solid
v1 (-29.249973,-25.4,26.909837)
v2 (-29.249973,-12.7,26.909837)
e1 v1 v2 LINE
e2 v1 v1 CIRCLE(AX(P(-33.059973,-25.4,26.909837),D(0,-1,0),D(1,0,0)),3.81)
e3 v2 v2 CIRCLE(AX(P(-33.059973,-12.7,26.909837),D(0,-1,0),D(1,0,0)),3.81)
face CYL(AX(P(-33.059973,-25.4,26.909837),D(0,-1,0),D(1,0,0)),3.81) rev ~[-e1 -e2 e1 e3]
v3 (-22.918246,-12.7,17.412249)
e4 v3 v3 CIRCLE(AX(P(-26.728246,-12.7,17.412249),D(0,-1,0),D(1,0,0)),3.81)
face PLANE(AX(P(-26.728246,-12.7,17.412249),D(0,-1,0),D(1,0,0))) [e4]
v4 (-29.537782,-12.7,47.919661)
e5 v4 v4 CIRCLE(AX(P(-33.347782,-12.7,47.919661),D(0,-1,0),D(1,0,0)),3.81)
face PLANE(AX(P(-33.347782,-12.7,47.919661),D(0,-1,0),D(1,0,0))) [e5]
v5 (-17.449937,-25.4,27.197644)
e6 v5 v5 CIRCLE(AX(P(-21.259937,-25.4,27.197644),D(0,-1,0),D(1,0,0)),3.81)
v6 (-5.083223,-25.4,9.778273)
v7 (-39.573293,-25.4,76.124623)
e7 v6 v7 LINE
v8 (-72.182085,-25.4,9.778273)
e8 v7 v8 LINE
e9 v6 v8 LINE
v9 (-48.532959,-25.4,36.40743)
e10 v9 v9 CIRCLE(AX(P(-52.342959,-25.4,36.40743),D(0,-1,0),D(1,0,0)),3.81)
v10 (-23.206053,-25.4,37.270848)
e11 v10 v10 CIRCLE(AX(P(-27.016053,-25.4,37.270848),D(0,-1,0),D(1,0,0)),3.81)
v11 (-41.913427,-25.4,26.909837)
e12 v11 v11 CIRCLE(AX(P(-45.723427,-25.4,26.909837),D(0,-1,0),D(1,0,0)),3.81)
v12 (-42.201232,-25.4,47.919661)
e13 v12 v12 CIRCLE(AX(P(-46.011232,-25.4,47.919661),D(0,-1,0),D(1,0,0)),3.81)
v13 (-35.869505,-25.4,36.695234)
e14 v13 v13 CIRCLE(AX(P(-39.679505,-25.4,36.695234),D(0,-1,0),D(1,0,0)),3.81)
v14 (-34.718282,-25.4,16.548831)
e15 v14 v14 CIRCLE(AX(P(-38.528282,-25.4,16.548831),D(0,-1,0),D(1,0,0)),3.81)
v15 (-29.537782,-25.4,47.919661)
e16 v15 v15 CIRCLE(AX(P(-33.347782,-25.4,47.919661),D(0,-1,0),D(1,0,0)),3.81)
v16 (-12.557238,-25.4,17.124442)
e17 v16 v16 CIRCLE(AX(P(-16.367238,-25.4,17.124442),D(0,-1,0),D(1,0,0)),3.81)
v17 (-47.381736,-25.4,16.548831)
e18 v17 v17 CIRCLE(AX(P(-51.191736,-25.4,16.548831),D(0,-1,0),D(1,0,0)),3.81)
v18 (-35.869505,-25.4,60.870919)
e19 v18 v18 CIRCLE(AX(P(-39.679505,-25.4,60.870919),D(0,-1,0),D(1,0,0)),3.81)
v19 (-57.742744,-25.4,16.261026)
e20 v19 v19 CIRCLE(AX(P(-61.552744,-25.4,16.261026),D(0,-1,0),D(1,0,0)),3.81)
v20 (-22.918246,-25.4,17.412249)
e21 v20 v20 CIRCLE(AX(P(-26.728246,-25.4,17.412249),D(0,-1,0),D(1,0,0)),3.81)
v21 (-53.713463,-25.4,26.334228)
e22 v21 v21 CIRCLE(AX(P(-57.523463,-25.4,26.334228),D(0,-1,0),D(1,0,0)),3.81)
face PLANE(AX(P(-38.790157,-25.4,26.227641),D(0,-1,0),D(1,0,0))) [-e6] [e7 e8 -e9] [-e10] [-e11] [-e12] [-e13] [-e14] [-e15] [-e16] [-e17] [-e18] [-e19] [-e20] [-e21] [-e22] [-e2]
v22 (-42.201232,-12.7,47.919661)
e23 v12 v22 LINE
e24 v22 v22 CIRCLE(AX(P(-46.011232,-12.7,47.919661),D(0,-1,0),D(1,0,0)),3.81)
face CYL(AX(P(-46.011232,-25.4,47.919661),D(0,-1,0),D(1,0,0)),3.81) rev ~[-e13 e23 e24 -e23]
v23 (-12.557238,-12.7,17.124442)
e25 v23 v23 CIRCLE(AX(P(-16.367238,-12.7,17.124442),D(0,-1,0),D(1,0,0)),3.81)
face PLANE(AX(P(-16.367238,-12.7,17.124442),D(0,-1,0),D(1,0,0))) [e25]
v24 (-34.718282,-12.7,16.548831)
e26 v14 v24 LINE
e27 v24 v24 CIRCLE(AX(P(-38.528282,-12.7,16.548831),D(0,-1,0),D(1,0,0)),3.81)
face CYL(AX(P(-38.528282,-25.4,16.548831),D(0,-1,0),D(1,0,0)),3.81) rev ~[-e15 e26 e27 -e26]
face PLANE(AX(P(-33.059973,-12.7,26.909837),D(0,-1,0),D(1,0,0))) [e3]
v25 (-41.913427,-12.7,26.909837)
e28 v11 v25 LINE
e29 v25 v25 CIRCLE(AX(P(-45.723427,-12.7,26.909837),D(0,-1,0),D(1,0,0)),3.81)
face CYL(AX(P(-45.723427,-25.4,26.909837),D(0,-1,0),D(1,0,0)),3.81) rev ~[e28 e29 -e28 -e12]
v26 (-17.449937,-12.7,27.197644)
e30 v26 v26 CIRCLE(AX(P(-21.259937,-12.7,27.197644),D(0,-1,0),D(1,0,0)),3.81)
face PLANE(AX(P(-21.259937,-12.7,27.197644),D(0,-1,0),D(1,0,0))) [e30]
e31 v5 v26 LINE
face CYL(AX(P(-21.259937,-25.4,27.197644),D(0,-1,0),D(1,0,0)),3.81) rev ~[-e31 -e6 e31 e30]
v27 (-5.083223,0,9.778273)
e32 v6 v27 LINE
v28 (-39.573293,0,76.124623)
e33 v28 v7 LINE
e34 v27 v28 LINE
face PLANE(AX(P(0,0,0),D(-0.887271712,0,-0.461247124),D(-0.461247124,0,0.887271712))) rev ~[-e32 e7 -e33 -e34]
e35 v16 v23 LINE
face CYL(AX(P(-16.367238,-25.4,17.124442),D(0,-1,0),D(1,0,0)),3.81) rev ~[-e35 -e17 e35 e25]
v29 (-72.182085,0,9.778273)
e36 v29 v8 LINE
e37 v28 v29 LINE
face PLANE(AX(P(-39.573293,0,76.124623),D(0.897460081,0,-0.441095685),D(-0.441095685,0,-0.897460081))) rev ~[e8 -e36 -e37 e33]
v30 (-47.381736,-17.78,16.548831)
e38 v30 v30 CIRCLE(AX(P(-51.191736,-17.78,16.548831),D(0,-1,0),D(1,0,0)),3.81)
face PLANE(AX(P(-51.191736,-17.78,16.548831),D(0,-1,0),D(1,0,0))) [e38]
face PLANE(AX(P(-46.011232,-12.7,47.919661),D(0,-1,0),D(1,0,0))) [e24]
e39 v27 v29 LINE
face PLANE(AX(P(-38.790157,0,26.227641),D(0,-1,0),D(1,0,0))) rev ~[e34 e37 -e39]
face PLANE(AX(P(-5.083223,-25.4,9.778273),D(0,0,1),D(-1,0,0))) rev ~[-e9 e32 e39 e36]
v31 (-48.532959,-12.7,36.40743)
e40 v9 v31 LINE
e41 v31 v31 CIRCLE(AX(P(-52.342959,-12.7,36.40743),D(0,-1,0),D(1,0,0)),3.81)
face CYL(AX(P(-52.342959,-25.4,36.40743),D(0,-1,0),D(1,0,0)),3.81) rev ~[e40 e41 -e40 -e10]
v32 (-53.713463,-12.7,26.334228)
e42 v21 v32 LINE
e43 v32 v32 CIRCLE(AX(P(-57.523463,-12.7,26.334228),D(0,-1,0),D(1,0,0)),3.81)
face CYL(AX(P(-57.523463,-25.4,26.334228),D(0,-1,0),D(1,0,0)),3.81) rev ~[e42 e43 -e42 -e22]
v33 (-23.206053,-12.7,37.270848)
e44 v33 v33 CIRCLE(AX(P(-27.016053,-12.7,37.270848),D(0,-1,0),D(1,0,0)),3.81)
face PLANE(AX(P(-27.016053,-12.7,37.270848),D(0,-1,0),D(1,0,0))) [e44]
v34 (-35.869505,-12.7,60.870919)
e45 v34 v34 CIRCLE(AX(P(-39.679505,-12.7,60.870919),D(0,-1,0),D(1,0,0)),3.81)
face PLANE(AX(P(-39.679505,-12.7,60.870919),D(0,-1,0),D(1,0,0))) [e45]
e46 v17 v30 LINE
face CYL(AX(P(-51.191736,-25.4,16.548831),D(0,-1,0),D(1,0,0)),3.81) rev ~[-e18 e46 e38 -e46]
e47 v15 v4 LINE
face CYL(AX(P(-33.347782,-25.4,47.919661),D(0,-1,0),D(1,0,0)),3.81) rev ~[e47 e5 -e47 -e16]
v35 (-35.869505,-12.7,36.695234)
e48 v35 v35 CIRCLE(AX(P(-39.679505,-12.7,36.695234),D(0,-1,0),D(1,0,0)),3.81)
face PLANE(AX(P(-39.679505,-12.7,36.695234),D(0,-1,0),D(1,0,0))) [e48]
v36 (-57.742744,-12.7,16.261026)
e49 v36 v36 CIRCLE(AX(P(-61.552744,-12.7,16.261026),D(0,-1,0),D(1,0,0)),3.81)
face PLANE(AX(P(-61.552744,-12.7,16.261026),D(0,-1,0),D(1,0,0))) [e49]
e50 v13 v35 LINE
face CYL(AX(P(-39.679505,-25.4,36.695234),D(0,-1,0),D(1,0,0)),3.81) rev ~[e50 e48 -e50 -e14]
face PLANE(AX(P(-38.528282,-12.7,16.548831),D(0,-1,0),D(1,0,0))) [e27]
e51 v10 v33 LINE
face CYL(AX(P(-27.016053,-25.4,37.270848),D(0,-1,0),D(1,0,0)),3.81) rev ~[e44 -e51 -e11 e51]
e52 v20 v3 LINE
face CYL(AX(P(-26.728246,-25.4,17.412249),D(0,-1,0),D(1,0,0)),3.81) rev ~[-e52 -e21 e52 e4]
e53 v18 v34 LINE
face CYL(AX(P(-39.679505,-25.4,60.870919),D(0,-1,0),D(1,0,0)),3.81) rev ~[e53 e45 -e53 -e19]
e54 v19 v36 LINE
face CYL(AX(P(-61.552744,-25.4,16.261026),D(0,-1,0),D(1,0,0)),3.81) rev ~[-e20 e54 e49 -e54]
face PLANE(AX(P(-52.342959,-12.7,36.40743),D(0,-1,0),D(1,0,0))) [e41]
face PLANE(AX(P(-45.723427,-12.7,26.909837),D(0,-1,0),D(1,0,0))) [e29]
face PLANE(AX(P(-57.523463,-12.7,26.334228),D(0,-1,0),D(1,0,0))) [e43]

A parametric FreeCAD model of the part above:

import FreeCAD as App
import Part
import Sketcher
from FreeCAD import Vector
Q = App.Units.Quantity


def add_polygon(sketch, points):
    """Adds a closed chain of lines whose ends are joined by coincident constraints."""
    first, n = sketch.GeometryCount, len(points)
    for a, b in zip(points, points[1:] + points[:1]):
        sketch.addGeometry(Part.LineSegment(App.Vector(*a, 0), App.Vector(*b, 0)), False)
    for i in range(n):
        sketch.addConstraint(Sketcher.Constraint("Coincident", first + i, 2, first + (i + 1) % n, 1))

doc = App.newDocument("Part")
body = doc.addObject("PartDesign::Body", "Body")

# Sketch on XZ plane
sketch1 = body.newObject("Sketcher::SketchObject", "Sketch")
sketch1.AttachmentSupport = (doc.getObject("XZ_Plane"), [""])
sketch1.MapMode = "FlatFace"
add_polygon(sketch1, [(-77, 0), (0, 0), (-40, 76)])  # lines 0-2
sketch1.addConstraint(Sketcher.Constraint("Horizontal", 0))
sketch1.addConstraint(Sketcher.Constraint("Coincident", 0, 2, -1, 1))
sketch1.addConstraint(Sketcher.Constraint("DistanceX", 0, 1, 0, 2, 76.988041))
sketch1.addConstraint(Sketcher.Constraint("Distance", 1, 85.796292))
sketch1.addConstraint(Sketcher.Constraint("Distance", 2, 84.822294))
pad1 = body.newObject("PartDesign::Pad", "Pad")
pad1.Profile = sketch1
pad1.Length = Q("1 in")

# Sketch on XZ plane
sketch2 = body.newObject("Sketcher::SketchObject", "Sketch001")
sketch2.AttachmentSupport = (doc.getObject("XZ_Plane"), [""])
sketch2.MapMode = "FlatFace"
sketch2.AttachmentOffset = App.Placement(Vector(0, 0, 1 * 25.4), App.Rotation())
sketch2.addGeometry(Part.Circle(Vector(-39.7, 60.9, 0), Vector(0, 0, 1), 3.8), False)
sketch2.addConstraint(Sketcher.Constraint("Diameter", 0, Q("0.3 in")))
sketch2.addConstraint(Sketcher.Constraint("DistanceY", -1, 1, 0, 3, 60.870919))
sketch2.addConstraint(Sketcher.Constraint("DistanceX", 0, 3, -1, 1, 39.679505))
pocket1 = body.newObject("PartDesign::Pocket", "Pocket")
pocket1.Profile = sketch2
pocket1.Length = Q("0.5 in")

# Sketch on XZ plane
sketch3 = body.newObject("Sketcher::SketchObject", "Sketch002")
sketch3.AttachmentSupport = (doc.getObject("XZ_Plane"), [""])
sketch3.MapMode = "FlatFace"
sketch3.AttachmentOffset = App.Placement(Vector(0, 0, 1 * 25.4), App.Rotation())
sketch3.addGeometry(Part.Circle(Vector(-46, 47.9, 0), Vector(0, 0, 1), 3.8), False)
sketch3.addConstraint(Sketcher.Constraint("Diameter", 0, Q("0.3 in")))
sketch3.addConstraint(Sketcher.Constraint("DistanceY", -1, 1, 0, 3, 47.919661))
sketch3.addConstraint(Sketcher.Constraint("DistanceX", 0, 3, -1, 1, 46.011232))
pocket2 = body.newObject("PartDesign::Pocket", "Pocket001")
pocket2.Profile = sketch3
pocket2.Length = Q("0.5 in")

# Sketch on XZ plane
sketch4 = body.newObject("Sketcher::SketchObject", "Sketch003")
sketch4.AttachmentSupport = (doc.getObject("XZ_Plane"), [""])
sketch4.MapMode = "FlatFace"
sketch4.AttachmentOffset = App.Placement(Vector(0, 0, 1 * 25.4), App.Rotation())
sketch4.addGeometry(Part.Circle(Vector(-33.3, 47.9, 0), Vector(0, 0, 1), 3.8), False)
sketch4.addConstraint(Sketcher.Constraint("Diameter", 0, Q("0.3 in")))
sketch4.addConstraint(Sketcher.Constraint("DistanceY", -1, 1, 0, 3, 47.919661))
sketch4.addConstraint(Sketcher.Constraint("DistanceX", 0, 3, -1, 1, 33.347782))
pocket3 = body.newObject("PartDesign::Pocket", "Pocket002")
pocket3.Profile = sketch4
pocket3.Length = Q("0.5 in")

# Sketch on XZ plane
sketch5 = body.newObject("Sketcher::SketchObject", "Sketch004")
sketch5.AttachmentSupport = (doc.getObject("XZ_Plane"), [""])
sketch5.MapMode = "FlatFace"
sketch5.AttachmentOffset = App.Placement(Vector(0, 0, 1 * 25.4), App.Rotation())
sketch5.addGeometry(Part.Circle(Vector(-52.3, 36.4, 0), Vector(0, 0, 1), 3.8), False)
sketch5.addConstraint(Sketcher.Constraint("Diameter", 0, Q("0.3 in")))
sketch5.addConstraint(Sketcher.Constraint("DistanceX", 0, 3, -1, 1, 52.342959))
sketch5.addConstraint(Sketcher.Constraint("DistanceY", -1, 1, 0, 3, 36.40743))
pocket4 = body.newObject("PartDesign::Pocket", "Pocket003")
pocket4.Profile = sketch5
pocket4.Length = Q("0.5 in")

# Sketch on XZ plane
sketch6 = body.newObject("Sketcher::SketchObject", "Sketch005")
sketch6.AttachmentSupport = (doc.getObject("XZ_Plane"), [""])
sketch6.MapMode = "FlatFace"
sketch6.AttachmentOffset = App.Placement(Vector(0, 0, 1 * 25.4), App.Rotation())
sketch6.addGeometry(Part.Circle(Vector(-39.7, 36.7, 0), Vector(0, 0, 1), 3.8), False)
sketch6.addConstraint(Sketcher.Constraint("Diameter", 0, Q("0.3 in")))
sketch6.addConstraint(Sketcher.Constraint("DistanceX", 0, 3, -1, 1, 39.679505))
sketch6.addConstraint(Sketcher.Constraint("DistanceY", -1, 1, 0, 3, 36.695234))
pocket5 = body.newObject("PartDesign::Pocket", "Pocket004")
pocket5.Profile = sketch6
pocket5.Length = Q("0.5 in")

# Sketch on XZ plane
sketch7 = body.newObject("Sketcher::SketchObject", "Sketch006")
sketch7.AttachmentSupport = (doc.getObject("XZ_Plane"), [""])
sketch7.MapMode = "FlatFace"
sketch7.AttachmentOffset = App.Placement(Vector(0, 0, 1 * 25.4), App.Rotation())
sketch7.addGeometry(Part.Circle(Vector(-27, 37.3, 0), Vector(0, 0, 1), 3.8), False)
sketch7.addConstraint(Sketcher.Constraint("Diameter", 0, Q("0.3 in")))
sketch7.addConstraint(Sketcher.Constraint("DistanceX", 0, 3, -1, 1, 27.016053))
sketch7.addConstraint(Sketcher.Constraint("DistanceY", -1, 1, 0, 3, 37.270848))
pocket6 = body.newObject("PartDesign::Pocket", "Pocket005")
pocket6.Profile = sketch7
pocket6.Length = Q("0.5 in")

# Sketch on XZ plane
sketch8 = body.newObject("Sketcher::SketchObject", "Sketch007")
sketch8.AttachmentSupport = (doc.getObject("XZ_Plane"), [""])
sketch8.MapMode = "FlatFace"
sketch8.AttachmentOffset = App.Placement(Vector(0, 0, 1 * 25.4), App.Rotation())
sketch8.addGeometry(Part.Circle(Vector(-57.5, 26.3, 0), Vector(0, 0, 1), 3.8), False)
sketch8.addConstraint(Sketcher.Constraint("Diameter", 0, Q("0.3 in")))
sketch8.addConstraint(Sketcher.Constraint("DistanceX", 0, 3, -1, 1, 57.523463))
sketch8.addConstraint(Sketcher.Constraint("DistanceY", -1, 1, 0, 3, 26.334228))
pocket7 = body.newObject("PartDesign::Pocket", "Pocket006")
pocket7.Profile = sketch8
pocket7.Length = Q("0.5 in")

# Sketch on XZ plane
sketch9 = body.newObject("Sketcher::SketchObject", "Sketch008")
sketch9.AttachmentSupport = (doc.getObject("XZ_Plane"), [""])
sketch9.MapMode = "FlatFace"
sketch9.AttachmentOffset = App.Placement(Vector(0, 0, 1 * 25.4), App.Rotation())
sketch9.addGeometry(Part.Circle(Vector(-45.7, 26.9, 0), Vector(0, 0, 1), 3.8), False)
sketch9.addConstraint(Sketcher.Constraint("Diameter", 0, Q("0.3 in")))
sketch9.addConstraint(Sketcher.Constraint("DistanceX", 0, 3, -1, 1, 45.723427))
sketch9.addConstraint(Sketcher.Constraint("DistanceY", -1, 1, 0, 3, 26.909837))
pocket8 = body.newObject("PartDesign::Pocket", "Pocket007")
pocket8.Profile = sketch9
pocket8.Length = Q("0.5 in")

# Sketch on XZ plane
sketch10 = body.newObject("Sketcher::SketchObject", "Sketch009")
sketch10.AttachmentSupport = (doc.getObject("XZ_Plane"), [""])
sketch10.MapMode = "FlatFace"
sketch10.AttachmentOffset = App.Placement(Vector(0, 0, 1 * 25.4), App.Rotation())
sketch10.addGeometry(Part.Circle(Vector(-33.1, 26.9, 0), Vector(0, 0, 1), 3.8), False)
sketch10.addConstraint(Sketcher.Constraint("Diameter", 0, Q("0.3 in")))
sketch10.addConstraint(Sketcher.Constraint("DistanceX", 0, 3, -1, 1, 33.059973))
sketch10.addConstraint(Sketcher.Constraint("DistanceY", -1, 1, 0, 3, 26.909837))
pocket9 = body.newObject("PartDesign::Pocket", "Pocket008")
pocket9.Profile = sketch10
pocket9.Length = Q("0.5 in")

# Sketch on XZ plane
sketch11 = body.newObject("Sketcher::SketchObject", "Sketch010")
sketch11.AttachmentSupport = (doc.getObject("XZ_Plane"), [""])
sketch11.MapMode = "FlatFace"
sketch11.AttachmentOffset = App.Placement(Vector(0, 0, 1 * 25.4), App.Rotation())
sketch11.addGeometry(Part.Circle(Vector(-21.3, 27.2, 0), Vector(0, 0, 1), 3.8), False)
sketch11.addConstraint(Sketcher.Constraint("Diameter", 0, Q("0.3 in")))
sketch11.addConstraint(Sketcher.Constraint("DistanceX", 0, 3, -1, 1, 21.259937))
sketch11.addConstraint(Sketcher.Constraint("DistanceY", -1, 1, 0, 3, 27.197644))
pocket10 = body.newObject("PartDesign::Pocket", "Pocket009")
pocket10.Profile = sketch11
pocket10.Length = Q("0.5 in")

# Sketch on XZ plane
sketch12 = body.newObject("Sketcher::SketchObject", "Sketch011")
sketch12.AttachmentSupport = (doc.getObject("XZ_Plane"), [""])
sketch12.MapMode = "FlatFace"
sketch12.AttachmentOffset = App.Placement(Vector(0, 0, 1 * 25.4), App.Rotation())
sketch12.addGeometry(Part.Circle(Vector(-61.6, 16.3, 0), Vector(0, 0, 1), 3.8), False)
sketch12.addConstraint(Sketcher.Constraint("Diameter", 0, Q("0.3 in")))
sketch12.addConstraint(Sketcher.Constraint("DistanceX", 0, 3, -1, 1, 61.552744))
sketch12.addConstraint(Sketcher.Constraint("DistanceY", -1, 1, 0, 3, 16.261026))
pocket11 = body.newObject("PartDesign::Pocket", "Pocket010")
pocket11.Profile = sketch12
pocket11.Length = Q("0.5 in")

# Sketch on XZ plane
sketch13 = body.newObject("Sketcher::SketchObject", "Sketch012")
sketch13.AttachmentSupport = (doc.getObject("XZ_Plane"), [""])
sketch13.MapMode = "FlatFace"
sketch13.AttachmentOffset = App.Placement(Vector(0, 0, 1 * 25.4), App.Rotation())
sketch13.addGeometry(Part.Circle(Vector(-51.2, 16.5, 0), Vector(0, 0, 1), 3.8), False)
sketch13.addConstraint(Sketcher.Constraint("Diameter", 0, Q("0.3 in")))
sketch13.addConstraint(Sketcher.Constraint("DistanceY", -1, 1, 0, 3, 16.548831))
sketch13.addConstraint(Sketcher.Constraint("DistanceX", 0, 3, -1, 1, 51.191736))
pocket12 = body.newObject("PartDesign::Pocket", "Pocket011")
pocket12.Profile = sketch13
pocket12.Length = Q("0.3 in")

# Sketch on XZ plane
sketch14 = body.newObject("Sketcher::SketchObject", "Sketch013")
sketch14.AttachmentSupport = (doc.getObject("XZ_Plane"), [""])
sketch14.MapMode = "FlatFace"
sketch14.AttachmentOffset = App.Placement(Vector(0, 0, 1 * 25.4), App.Rotation())
sketch14.addGeometry(Part.Circle(Vector(-38.5, 16.5, 0), Vector(0, 0, 1), 3.8), False)
sketch14.addConstraint(Sketcher.Constraint("Diameter", 0, Q("0.3 in")))
sketch14.addConstraint(Sketcher.Constraint("DistanceX", 0, 3, -1, 1, 38.528282))
sketch14.addConstraint(Sketcher.Constraint("DistanceY", -1, 1, 0, 3, 16.548831))
pocket13 = body.newObject("PartDesign::Pocket", "Pocket012")
pocket13.Profile = sketch14
pocket13.Length = Q("0.5 in")

# Sketch on XZ plane
sketch15 = body.newObject("Sketcher::SketchObject", "Sketch014")
sketch15.AttachmentSupport = (doc.getObject("XZ_Plane"), [""])
sketch15.MapMode = "FlatFace"
sketch15.AttachmentOffset = App.Placement(Vector(0, 0, 1 * 25.4), App.Rotation())
sketch15.addGeometry(Part.Circle(Vector(-26.7, 17.4, 0), Vector(0, 0, 1), 3.8), False)
sketch15.addConstraint(Sketcher.Constraint("Diameter", 0, Q("0.3 in")))
sketch15.addConstraint(Sketcher.Constraint("DistanceY", -1, 1, 0, 3, 17.412249))
sketch15.addConstraint(Sketcher.Constraint("DistanceX", 0, 3, -1, 1, 26.728246))
pocket14 = body.newObject("PartDesign::Pocket", "Pocket013")
pocket14.Profile = sketch15
pocket14.Length = Q("0.5 in")

# Sketch on XZ plane
sketch16 = body.newObject("Sketcher::SketchObject", "Sketch015")
sketch16.AttachmentSupport = (doc.getObject("XZ_Plane"), [""])
sketch16.MapMode = "FlatFace"
sketch16.AttachmentOffset = App.Placement(Vector(0, 0, 1 * 25.4), App.Rotation())
sketch16.addGeometry(Part.Circle(Vector(-16.4, 17.1, 0), Vector(0, 0, 1), 3.8), False)
sketch16.addConstraint(Sketcher.Constraint("Diameter", 0, Q("0.3 in")))
sketch16.addConstraint(Sketcher.Constraint("DistanceX", 0, 3, -1, 1, 16.367238))
sketch16.addConstraint(Sketcher.Constraint("DistanceY", -1, 1, 0, 3, 17.124442))
pocket15 = body.newObject("PartDesign::Pocket", "Pocket014")
pocket15.Profile = sketch16
pocket15.Length = Q("0.5 in")

# Sketch on XZ plane
sketch17 = body.newObject("Sketcher::SketchObject", "Sketch016")
sketch17.AttachmentSupport = (doc.getObject("XZ_Plane"), [""])
sketch17.MapMode = "FlatFace"
sketch17.AttachmentOffset = App.Placement(Vector(0, 0, 1 * 25.4), App.Rotation())
add_polygon(sketch17, [(-5, 10), (-72, 10), (-77, 0), (0, 0)])  # lines 0-3
sketch17.addConstraint(Sketcher.Constraint("Horizontal", 0))
sketch17.addConstraint(Sketcher.Constraint("Horizontal", 2))
sketch17.addConstraint(Sketcher.Constraint("Coincident", 2, 2, -1, 1))
sketch17.addConstraint(Sketcher.Constraint("DistanceX", 0, 2, 0, 1, 67.098862))
sketch17.addConstraint(Sketcher.Constraint("DistanceX", 2, 1, 2, 2, 76.988041))
sketch17.addConstraint(Sketcher.Constraint("Distance", 1, 10.895496))
sketch17.addConstraint(Sketcher.Constraint("Distance", 3, 11.020607))
pocket16 = body.newObject("PartDesign::Pocket", "Pocket015")
pocket16.Profile = sketch17
pocket16.Length = Q("5 in")

doc.recompute()
